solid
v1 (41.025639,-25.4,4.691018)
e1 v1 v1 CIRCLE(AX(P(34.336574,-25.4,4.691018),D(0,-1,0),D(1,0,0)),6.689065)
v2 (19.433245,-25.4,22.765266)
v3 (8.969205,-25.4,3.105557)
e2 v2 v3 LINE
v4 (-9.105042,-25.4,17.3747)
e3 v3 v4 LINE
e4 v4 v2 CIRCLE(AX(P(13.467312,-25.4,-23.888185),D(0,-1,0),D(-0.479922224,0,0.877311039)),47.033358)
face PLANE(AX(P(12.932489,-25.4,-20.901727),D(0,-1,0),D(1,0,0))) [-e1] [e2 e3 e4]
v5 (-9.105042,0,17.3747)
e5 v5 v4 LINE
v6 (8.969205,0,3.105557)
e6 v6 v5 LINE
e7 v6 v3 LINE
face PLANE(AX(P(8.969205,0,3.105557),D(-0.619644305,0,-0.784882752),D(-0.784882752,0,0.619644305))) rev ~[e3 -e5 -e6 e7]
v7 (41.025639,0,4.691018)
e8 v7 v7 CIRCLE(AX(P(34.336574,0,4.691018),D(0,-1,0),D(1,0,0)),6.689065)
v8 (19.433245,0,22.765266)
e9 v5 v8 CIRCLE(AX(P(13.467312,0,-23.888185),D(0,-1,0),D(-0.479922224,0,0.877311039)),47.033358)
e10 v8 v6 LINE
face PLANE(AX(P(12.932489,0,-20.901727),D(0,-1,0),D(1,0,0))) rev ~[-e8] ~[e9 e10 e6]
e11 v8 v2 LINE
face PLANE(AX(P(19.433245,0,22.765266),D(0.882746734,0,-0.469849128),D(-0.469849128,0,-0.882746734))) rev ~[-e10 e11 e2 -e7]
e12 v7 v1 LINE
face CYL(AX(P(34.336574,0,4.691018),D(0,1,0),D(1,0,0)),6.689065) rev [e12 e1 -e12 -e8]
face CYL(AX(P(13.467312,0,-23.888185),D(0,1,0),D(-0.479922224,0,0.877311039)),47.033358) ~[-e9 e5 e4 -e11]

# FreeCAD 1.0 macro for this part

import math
import FreeCAD as App
import Part
import Sketcher
Q = App.Units.Quantity

doc = App.newDocument("Part")
params = doc.addObject("Spreadsheet::Sheet", "Params")
for row, (alias, value) in enumerate([
    ("pad1_length", "1 in"),
], start=1):
    params.set(f"A{row}", alias)
    params.set(f"B{row}", "=" + value)
    params.setAlias(f"B{row}", alias)

body = doc.addObject("PartDesign::Body", "Body")

sketch1 = body.newObject("Sketcher::SketchObject", "Sketch")
sketch1.AttachmentSupport = (doc.getObject("XZ_Plane"), [""])
sketch1.MapMode = "FlatFace"
sketch1.addGeometry(Part.LineSegment(App.Vector(8.969205, 3.105557, 0), App.Vector(-9.105042, 17.3747, 0)), False)
sketch1.addGeometry(Part.ArcOfCircle(Part.Circle(App.Vector(13.467312, -23.888185, 0), App.Vector(0, 0, 1), 47.033358), math.radians(118.680322), math.radians(442.712702)), False)
sketch1.addGeometry(Part.LineSegment(App.Vector(19.433245, 22.765266, 0), App.Vector(8.969205, 3.105557, 0)), False)
sketch1.addGeometry(Part.Circle(App.Vector(34.336574, 4.691018, 0), App.Vector(0, 0, 1), 6.689065), False)
sketch1.addConstraint(Sketcher.Constraint("Coincident", 0, 2, 1, 1))
sketch1.addConstraint(Sketcher.Constraint("Coincident", 1, 2, 2, 1))
sketch1.addConstraint(Sketcher.Constraint("Coincident", 2, 2, 0, 1))
sketch1.addConstraint(Sketcher.Constraint("Diameter", 3, Q("13.37813 mm")))
sketch1.addConstraint(Sketcher.Constraint("Radius", 1, Q("47.033358 mm")))
sketch1.addConstraint(Sketcher.Constraint("DistanceX", 0, 2, 3, 3, Q("1.7102998 in")))
sketch1.addConstraint(Sketcher.Constraint("DistanceY", -1, 1, 0, 2, Q("17.3747 mm")))
sketch1.addConstraint(Sketcher.Constraint("DistanceX", -1, 1, 1, 3, Q("13.467312 mm")))
sketch1.addConstraint(Sketcher.Constraint("DistanceX", 0, 2, -1, 1, Q("9.105042 mm")))
sketch1.addConstraint(Sketcher.Constraint("DistanceX", 1, 2, 3, 3, Q("14.903329 mm")))
sketch1.addConstraint(Sketcher.Constraint("DistanceX", 2, 2, 1, 2, Q("10.46404 mm")))
sketch1.addConstraint(Sketcher.Constraint("DistanceY", 2, 2, 1, 2, Q("19.659709 mm")))
sketch1.addConstraint(Sketcher.Constraint("DistanceY", 2, 2, 3, 3, Q("1.585461 mm")))
pad1 = body.newObject("PartDesign::Pad", "Pad")
pad1.Profile = sketch1
pad1.setExpression("Length", "Params.pad1_length")

doc.recompute()
